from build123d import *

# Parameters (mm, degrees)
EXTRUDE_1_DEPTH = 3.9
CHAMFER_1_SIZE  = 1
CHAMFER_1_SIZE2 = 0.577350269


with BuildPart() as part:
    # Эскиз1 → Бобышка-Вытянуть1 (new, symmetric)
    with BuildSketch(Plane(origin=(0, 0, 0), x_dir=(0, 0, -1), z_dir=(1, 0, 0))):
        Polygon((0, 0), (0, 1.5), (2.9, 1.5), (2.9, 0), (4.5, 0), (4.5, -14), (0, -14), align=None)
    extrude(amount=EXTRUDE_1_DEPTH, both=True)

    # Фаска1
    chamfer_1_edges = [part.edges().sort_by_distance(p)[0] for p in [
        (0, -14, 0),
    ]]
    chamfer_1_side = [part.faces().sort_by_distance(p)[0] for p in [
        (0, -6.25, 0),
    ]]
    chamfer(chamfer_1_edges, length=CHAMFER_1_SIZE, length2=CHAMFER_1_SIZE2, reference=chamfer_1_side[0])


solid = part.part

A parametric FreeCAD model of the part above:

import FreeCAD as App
import Part
import Sketcher

V = App.Vector


def edges_at(feature, points):
    """Names of the edges that pass closest to the given points."""
    edges = feature.Shape.Edges
    near = lambda p: min(range(len(edges)), key=lambda i: edges[i].distToShape(Part.Vertex(*p))[0])
    return sorted({f"Edge{near(p) + 1}" for p in points})


def add_polygon(sketch, points):
    """Adds a closed chain of lines whose ends are joined by coincident constraints."""
    first, n = sketch.GeometryCount, len(points)
    for a, b in zip(points, points[1:] + points[:1]):
        sketch.addGeometry(Part.LineSegment(App.Vector(*a, 0), App.Vector(*b, 0)), False)
    for i in range(n):
        sketch.addConstraint(Sketcher.Constraint("Coincident", first + i, 2, first + (i + 1) % n, 1))

doc = App.newDocument("Part")
body = doc.addObject("PartDesign::Body", "Body")

# Sketch on YZ plane
sketch1 = body.newObject("Sketcher::SketchObject", "Sketch")
sketch1.AttachmentSupport = (doc.getObject("YZ_Plane"), [""])
sketch1.MapMode = "FlatFace"
add_polygon(sketch1, [(1.5, 0), (-14, 0), (-14, -4.5), (0, -4.5), (0, -2.9), (1.5, -2.9)])  # lines 0-5
sketch1.addConstraint([
    Sketcher.Constraint("Horizontal", 0),
    Sketcher.Constraint("Vertical", 1),
    Sketcher.Constraint("Horizontal", 2),
    Sketcher.Constraint("Vertical", 3),
    Sketcher.Constraint("Horizontal", 4),
    Sketcher.Constraint("Vertical", 5),
    Sketcher.Constraint("PointOnObject", 0, 2, -1),
    Sketcher.Constraint("PointOnObject", 2, 2, -2),
    Sketcher.Constraint("DistanceX", 2, 1, 2, 2, 14.0),
    Sketcher.Constraint("DistanceX", 0, 2, 0, 1, 15.5),
    Sketcher.Constraint("DistanceY", 1, 2, 1, 1, 4.5),
    Sketcher.Constraint("DistanceY", 3, 1, 3, 2, 1.6),
])
pad1 = body.newObject("PartDesign::Pad", "Pad")
pad1.Profile = sketch1
pad1.Length = 7.8
pad1.Midplane = True
doc.recompute()

chamfer = body.newObject("PartDesign::Chamfer", "Chamfer")
chamfer.Base = (pad1, edges_at(pad1, [(0, -14, 0)]))
chamfer.ChamferType = "Two distances"
chamfer.Size = 1
chamfer.Size2 = 0.57735

doc.recompute()
